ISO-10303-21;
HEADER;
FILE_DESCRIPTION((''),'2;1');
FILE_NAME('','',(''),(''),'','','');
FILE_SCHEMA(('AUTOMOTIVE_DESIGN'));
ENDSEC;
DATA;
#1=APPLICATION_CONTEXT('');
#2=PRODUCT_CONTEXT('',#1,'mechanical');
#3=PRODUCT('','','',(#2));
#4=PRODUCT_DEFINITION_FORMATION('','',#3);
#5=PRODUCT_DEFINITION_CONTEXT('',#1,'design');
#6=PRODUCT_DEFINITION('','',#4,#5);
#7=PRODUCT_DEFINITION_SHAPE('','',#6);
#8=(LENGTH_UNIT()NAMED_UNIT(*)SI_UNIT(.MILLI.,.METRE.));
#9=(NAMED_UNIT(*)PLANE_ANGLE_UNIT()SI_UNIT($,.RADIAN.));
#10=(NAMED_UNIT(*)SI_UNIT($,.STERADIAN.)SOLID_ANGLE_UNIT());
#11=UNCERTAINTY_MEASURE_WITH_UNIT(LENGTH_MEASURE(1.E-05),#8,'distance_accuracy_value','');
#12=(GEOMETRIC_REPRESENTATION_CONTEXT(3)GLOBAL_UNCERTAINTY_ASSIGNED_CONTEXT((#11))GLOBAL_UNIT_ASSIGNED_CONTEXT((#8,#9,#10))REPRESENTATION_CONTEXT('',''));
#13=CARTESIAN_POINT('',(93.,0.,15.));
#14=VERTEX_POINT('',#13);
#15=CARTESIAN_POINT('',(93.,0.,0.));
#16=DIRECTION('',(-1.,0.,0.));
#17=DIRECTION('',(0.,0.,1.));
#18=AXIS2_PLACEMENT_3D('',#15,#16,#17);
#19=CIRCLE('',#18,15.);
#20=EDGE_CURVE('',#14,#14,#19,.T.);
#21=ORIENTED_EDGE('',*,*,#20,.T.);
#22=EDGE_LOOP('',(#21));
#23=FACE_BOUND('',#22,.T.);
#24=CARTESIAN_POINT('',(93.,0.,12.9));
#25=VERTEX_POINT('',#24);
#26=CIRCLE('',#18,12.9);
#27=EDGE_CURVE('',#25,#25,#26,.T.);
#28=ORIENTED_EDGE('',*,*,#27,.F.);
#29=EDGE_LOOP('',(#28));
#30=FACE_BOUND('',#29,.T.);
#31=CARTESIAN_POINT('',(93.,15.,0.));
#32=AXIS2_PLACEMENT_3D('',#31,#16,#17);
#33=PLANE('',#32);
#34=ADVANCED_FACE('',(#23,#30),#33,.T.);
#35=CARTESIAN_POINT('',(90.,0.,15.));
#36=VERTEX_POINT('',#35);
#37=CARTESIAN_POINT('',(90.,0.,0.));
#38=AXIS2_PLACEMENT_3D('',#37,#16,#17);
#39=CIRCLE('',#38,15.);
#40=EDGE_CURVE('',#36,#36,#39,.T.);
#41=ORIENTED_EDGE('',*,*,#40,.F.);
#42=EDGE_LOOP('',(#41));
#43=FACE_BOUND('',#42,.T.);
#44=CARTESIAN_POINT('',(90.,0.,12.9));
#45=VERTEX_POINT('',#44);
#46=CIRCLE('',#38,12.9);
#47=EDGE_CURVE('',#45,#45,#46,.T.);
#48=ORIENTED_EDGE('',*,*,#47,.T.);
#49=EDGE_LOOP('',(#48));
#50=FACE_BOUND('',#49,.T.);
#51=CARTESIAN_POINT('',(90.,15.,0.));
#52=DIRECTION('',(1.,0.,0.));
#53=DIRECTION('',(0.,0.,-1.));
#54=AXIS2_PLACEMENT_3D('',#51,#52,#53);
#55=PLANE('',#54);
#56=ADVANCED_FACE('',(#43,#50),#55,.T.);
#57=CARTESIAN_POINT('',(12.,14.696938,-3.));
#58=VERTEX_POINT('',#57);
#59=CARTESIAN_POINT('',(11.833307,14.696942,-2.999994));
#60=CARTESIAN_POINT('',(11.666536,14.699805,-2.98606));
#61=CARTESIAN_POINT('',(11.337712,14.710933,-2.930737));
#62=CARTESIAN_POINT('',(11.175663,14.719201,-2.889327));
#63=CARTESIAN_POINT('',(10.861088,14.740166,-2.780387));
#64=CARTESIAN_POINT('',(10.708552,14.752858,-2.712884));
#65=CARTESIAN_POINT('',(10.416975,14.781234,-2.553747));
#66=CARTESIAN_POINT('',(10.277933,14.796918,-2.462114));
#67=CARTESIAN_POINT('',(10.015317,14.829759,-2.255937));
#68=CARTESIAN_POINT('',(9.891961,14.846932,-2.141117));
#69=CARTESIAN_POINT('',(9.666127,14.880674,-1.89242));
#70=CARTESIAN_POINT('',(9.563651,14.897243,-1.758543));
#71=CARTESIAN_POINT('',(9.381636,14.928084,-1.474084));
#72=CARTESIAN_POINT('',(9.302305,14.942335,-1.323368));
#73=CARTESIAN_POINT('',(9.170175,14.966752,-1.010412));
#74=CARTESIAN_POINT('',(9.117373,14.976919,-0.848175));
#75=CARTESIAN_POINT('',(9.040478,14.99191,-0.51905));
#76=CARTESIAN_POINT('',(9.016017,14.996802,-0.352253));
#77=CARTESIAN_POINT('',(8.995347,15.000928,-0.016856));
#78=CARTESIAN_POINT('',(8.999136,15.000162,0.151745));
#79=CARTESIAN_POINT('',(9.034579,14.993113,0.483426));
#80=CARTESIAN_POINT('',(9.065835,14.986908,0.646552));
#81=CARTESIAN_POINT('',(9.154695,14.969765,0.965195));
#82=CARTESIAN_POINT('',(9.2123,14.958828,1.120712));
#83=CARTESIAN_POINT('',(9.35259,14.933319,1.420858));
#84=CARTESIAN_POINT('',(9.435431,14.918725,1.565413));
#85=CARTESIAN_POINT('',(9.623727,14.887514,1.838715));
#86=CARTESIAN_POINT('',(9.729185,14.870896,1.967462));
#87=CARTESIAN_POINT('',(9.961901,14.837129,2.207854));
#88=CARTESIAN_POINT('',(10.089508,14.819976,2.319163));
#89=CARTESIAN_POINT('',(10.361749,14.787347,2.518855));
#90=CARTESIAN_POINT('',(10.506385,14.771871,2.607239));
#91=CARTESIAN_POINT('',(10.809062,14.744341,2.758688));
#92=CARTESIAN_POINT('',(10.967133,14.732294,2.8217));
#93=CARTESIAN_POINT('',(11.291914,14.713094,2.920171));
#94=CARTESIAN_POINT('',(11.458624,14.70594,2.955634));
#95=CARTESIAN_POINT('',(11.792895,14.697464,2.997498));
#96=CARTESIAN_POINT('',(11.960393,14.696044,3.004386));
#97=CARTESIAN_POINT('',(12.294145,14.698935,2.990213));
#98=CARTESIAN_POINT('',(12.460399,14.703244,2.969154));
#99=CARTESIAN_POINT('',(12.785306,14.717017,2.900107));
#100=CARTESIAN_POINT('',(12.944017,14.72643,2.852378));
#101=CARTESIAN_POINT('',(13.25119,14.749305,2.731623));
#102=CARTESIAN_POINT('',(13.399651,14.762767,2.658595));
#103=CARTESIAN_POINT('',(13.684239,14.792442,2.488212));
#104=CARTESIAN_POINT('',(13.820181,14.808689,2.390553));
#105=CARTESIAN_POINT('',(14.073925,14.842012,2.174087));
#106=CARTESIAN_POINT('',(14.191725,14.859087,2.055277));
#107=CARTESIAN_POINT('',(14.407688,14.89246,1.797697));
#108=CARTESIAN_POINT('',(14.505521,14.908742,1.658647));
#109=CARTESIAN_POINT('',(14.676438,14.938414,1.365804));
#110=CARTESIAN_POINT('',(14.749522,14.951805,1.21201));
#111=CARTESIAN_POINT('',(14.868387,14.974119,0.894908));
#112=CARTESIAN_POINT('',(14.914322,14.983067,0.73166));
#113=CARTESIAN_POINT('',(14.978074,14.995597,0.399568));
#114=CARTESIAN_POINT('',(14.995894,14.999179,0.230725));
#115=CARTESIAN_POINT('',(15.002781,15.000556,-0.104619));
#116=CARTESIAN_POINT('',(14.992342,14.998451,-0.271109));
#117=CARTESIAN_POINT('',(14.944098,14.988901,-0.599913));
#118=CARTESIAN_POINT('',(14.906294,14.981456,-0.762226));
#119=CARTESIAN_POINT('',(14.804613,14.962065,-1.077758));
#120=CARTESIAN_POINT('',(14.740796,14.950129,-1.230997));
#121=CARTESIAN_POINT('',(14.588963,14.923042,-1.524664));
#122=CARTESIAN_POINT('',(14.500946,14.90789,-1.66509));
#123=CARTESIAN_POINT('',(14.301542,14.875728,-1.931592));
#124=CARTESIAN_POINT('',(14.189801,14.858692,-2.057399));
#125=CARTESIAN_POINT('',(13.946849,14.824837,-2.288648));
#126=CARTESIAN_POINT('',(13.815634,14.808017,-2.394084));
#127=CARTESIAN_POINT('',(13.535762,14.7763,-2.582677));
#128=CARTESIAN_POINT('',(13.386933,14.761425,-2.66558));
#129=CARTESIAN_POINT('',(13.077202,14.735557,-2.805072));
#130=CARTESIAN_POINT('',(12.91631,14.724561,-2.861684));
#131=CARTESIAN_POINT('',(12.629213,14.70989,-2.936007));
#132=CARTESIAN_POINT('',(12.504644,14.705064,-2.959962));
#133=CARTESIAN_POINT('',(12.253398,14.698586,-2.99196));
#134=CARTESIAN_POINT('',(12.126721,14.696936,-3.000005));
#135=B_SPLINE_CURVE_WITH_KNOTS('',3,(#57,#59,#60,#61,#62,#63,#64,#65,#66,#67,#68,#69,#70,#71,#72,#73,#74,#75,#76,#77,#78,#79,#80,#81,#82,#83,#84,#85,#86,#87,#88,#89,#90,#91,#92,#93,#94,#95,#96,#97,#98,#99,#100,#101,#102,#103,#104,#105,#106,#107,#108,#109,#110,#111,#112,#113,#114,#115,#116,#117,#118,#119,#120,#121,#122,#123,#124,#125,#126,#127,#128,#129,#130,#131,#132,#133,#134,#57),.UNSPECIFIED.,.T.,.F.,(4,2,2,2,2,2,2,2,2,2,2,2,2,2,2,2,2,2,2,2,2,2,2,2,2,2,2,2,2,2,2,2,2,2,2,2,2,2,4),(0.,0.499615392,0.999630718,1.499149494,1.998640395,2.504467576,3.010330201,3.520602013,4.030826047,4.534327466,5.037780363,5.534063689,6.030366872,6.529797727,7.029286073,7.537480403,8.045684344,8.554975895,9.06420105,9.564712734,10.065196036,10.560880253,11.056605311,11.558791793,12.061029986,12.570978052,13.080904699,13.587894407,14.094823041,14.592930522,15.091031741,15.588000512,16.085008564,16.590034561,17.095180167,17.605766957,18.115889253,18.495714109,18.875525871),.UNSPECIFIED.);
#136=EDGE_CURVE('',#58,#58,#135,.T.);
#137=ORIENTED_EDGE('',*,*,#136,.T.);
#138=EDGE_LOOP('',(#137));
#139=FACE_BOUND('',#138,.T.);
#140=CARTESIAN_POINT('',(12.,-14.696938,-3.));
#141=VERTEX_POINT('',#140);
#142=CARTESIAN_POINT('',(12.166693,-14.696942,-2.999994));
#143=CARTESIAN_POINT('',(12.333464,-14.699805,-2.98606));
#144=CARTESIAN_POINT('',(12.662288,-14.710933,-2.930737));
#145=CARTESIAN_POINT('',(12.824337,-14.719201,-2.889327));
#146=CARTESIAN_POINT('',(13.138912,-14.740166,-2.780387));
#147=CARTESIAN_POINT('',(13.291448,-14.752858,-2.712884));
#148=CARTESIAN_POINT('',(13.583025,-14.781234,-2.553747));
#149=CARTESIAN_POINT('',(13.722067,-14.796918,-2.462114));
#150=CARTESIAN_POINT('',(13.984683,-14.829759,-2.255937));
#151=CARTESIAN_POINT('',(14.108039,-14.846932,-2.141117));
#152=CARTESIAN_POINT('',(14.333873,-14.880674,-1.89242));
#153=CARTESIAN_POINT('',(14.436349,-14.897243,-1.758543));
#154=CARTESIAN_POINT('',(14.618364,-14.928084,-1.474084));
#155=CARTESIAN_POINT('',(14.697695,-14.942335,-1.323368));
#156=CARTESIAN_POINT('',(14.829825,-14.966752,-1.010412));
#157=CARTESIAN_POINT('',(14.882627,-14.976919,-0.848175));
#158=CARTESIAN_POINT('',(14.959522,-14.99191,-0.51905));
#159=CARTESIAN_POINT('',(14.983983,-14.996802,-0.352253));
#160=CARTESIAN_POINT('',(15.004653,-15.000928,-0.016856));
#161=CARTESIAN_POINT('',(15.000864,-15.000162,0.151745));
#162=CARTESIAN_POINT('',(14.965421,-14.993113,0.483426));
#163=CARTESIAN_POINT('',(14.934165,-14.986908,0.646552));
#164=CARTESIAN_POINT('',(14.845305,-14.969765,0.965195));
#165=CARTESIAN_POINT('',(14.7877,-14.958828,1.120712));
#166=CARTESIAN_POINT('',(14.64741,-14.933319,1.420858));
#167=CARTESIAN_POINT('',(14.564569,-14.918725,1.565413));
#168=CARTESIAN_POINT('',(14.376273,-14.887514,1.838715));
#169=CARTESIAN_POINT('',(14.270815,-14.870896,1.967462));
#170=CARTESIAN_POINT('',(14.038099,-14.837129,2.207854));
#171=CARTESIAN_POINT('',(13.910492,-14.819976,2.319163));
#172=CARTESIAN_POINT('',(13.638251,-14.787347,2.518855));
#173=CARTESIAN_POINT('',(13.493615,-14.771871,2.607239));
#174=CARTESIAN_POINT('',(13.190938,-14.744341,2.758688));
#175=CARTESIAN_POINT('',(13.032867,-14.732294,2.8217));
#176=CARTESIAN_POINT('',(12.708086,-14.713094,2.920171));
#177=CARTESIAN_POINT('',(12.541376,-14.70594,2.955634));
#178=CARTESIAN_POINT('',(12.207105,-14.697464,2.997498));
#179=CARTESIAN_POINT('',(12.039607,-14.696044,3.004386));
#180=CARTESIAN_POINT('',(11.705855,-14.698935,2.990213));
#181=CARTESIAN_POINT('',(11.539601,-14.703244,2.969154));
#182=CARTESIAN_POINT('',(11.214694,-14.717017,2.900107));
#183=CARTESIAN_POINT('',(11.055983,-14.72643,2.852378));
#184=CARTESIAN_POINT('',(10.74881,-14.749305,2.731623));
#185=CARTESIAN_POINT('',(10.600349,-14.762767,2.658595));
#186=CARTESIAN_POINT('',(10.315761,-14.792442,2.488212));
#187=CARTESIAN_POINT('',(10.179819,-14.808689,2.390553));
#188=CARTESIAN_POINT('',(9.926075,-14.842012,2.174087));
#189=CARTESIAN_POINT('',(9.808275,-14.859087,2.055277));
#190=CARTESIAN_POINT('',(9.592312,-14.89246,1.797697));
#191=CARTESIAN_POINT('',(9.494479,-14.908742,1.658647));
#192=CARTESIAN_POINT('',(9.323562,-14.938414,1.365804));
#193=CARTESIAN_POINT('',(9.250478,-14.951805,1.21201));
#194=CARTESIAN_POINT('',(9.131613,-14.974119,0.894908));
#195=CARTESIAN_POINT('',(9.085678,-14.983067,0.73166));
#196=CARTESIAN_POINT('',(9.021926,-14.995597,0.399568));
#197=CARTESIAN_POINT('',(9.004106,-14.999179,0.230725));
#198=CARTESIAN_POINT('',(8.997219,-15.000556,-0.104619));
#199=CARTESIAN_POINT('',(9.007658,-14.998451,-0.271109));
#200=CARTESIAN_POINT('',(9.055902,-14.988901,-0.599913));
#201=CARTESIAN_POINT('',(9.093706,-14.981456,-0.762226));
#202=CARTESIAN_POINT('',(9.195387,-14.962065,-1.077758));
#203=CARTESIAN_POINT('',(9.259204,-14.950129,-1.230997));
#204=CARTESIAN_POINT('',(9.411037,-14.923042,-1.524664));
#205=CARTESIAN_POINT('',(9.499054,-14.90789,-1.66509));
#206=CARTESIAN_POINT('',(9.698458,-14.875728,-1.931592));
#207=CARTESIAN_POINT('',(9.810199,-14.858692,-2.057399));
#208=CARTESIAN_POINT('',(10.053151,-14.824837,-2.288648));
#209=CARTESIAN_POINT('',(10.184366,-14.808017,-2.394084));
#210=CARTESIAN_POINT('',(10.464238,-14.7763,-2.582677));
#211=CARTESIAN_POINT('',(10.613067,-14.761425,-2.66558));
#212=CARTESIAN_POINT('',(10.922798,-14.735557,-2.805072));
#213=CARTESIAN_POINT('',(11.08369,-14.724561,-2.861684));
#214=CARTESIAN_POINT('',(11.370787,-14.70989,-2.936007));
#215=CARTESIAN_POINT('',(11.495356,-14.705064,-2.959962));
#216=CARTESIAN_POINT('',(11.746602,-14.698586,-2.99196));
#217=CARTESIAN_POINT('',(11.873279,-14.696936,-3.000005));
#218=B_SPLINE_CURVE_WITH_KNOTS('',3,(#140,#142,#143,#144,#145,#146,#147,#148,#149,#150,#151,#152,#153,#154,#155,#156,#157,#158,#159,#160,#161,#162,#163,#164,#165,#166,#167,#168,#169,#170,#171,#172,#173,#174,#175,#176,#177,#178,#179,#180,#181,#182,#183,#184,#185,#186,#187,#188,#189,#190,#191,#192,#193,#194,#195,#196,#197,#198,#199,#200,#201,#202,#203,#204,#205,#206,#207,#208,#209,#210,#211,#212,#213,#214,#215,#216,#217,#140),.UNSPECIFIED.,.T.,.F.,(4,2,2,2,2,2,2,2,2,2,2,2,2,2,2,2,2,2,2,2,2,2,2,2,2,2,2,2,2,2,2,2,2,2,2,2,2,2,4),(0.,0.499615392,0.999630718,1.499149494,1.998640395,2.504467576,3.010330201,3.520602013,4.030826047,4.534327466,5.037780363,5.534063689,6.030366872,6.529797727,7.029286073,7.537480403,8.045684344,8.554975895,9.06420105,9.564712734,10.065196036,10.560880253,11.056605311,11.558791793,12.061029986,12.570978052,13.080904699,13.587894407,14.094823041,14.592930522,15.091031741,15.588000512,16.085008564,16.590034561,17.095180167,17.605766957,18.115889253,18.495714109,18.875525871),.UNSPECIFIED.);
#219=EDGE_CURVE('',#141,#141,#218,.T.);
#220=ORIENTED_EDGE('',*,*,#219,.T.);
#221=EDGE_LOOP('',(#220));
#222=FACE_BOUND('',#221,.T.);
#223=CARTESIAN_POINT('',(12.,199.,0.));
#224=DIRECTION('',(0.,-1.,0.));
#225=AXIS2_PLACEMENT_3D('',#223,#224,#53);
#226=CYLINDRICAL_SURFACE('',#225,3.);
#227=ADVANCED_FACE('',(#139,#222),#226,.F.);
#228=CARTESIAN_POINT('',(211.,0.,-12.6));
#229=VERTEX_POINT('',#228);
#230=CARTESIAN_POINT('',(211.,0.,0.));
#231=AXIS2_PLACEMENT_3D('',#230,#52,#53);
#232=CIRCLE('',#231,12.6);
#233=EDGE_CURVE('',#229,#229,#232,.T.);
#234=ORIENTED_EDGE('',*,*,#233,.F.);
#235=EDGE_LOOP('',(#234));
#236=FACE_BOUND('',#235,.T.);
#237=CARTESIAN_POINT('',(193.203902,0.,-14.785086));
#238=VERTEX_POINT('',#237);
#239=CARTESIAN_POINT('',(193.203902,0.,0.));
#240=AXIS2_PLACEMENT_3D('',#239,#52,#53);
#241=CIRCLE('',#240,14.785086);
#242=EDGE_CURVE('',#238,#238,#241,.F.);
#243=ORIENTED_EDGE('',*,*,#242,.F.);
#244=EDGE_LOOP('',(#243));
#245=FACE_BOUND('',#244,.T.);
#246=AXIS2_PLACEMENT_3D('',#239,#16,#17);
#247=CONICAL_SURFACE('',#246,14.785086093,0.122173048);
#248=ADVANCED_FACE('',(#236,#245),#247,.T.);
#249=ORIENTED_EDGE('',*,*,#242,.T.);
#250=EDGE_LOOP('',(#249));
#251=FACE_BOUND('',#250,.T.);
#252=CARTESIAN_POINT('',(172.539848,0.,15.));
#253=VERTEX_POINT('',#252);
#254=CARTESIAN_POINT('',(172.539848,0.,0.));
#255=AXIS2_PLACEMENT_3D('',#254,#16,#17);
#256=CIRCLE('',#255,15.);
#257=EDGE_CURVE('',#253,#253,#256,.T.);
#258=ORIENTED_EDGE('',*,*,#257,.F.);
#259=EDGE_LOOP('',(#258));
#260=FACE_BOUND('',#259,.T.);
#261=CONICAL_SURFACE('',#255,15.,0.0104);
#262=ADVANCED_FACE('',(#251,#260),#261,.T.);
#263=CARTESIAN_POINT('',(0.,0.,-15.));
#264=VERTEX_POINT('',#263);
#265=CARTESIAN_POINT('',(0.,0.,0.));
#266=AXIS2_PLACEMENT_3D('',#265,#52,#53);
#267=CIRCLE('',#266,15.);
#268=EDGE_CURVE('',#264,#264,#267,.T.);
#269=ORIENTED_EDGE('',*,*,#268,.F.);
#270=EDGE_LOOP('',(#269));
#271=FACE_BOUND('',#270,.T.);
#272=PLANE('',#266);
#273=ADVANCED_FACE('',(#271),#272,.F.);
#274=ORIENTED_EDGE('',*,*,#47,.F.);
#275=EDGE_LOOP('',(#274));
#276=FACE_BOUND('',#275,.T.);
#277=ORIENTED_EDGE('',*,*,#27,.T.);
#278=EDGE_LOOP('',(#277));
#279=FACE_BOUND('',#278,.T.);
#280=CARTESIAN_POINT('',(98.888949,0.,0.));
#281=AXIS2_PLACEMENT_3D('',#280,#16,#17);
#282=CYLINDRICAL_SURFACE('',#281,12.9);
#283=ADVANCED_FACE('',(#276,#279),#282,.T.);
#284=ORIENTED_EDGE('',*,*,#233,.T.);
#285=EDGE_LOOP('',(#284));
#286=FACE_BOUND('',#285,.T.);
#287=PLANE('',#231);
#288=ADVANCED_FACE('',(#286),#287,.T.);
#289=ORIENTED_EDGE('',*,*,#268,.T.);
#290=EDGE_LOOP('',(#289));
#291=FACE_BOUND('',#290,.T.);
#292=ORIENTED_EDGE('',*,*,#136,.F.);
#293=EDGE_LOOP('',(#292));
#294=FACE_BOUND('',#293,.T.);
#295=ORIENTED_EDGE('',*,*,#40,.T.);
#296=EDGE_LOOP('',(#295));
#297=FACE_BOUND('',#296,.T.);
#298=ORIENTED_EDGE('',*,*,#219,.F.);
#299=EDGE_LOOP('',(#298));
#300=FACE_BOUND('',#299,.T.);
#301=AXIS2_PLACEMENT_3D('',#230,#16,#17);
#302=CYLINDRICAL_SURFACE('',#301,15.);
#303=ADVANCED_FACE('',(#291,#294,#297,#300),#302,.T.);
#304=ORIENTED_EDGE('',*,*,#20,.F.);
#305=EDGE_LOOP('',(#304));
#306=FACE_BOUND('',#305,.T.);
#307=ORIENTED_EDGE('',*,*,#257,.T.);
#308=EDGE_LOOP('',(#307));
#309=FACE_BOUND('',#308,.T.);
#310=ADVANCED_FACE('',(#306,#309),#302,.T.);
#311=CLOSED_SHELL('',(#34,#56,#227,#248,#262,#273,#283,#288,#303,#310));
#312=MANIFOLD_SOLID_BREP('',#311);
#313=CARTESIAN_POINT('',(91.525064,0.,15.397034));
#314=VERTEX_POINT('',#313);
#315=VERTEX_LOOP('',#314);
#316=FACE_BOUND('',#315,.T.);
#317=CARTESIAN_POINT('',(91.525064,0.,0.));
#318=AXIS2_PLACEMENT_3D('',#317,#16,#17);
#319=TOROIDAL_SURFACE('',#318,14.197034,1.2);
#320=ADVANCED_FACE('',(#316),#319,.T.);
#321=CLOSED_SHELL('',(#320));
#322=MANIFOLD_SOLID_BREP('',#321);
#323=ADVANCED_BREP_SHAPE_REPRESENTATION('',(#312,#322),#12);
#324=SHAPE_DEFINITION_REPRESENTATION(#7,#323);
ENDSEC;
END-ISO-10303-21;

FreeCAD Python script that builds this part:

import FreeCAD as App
import Part
import Sketcher
from FreeCAD import Vector


def edges_at(feature, points):
    """Names of the edges that pass closest to the given points."""
    edges = feature.Shape.Edges
    near = lambda p: min(range(len(edges)), key=lambda i: edges[i].distToShape(Part.Vertex(*p))[0])
    return sorted({f"Edge{near(p) + 1}" for p in points})

doc = App.newDocument("Part")
body = doc.addObject("PartDesign::Body", "Body")

sketch1 = body.newObject("Sketcher::SketchObject", "Sketch")
sketch1.AttachmentSupport = (doc.getObject("YZ_Plane"), [""])
sketch1.MapMode = "FlatFace"
sketch1.addGeometry(Part.Circle(Vector(0, 0, 0), Vector(0, 0, 1), 15), False)
sketch1.addConstraint(Sketcher.Constraint("Coincident", 0, 3, -1, 1))
sketch1.addConstraint(Sketcher.Constraint("Diameter", 0, 30.0))
pad1 = body.newObject("PartDesign::Pad", "Pad")
pad1.Profile = sketch1
pad1.Length = 211

sketch2 = body.newObject("Sketcher::SketchObject", "Sketch001")
sketch2.AttachmentSupport = (doc.getObject("XZ_Plane"), [""])
sketch2.MapMode = "FlatFace"
sketch2.addGeometry(Part.Circle(Vector(12, 0, 0), Vector(0, 0, 1), 3), False)
sketch2.addConstraint(Sketcher.Constraint("PointOnObject", 0, 3, -1))
sketch2.addConstraint(Sketcher.Constraint("Diameter", 0, 6.0))
sketch2.addConstraint(Sketcher.Constraint("DistanceX", -1, 1, 0, 3, 12.0))
pocket1 = body.newObject("PartDesign::Pocket", "Pocket")
pocket1.Profile = sketch2
pocket1.Type = "ThroughAll"
pocket1.Midplane = True

sketch3 = body.newObject("Sketcher::SketchObject", "Sketch002")
sketch3.AttachmentSupport = (doc.getObject("XY_Plane"), [""])
sketch3.MapMode = "FlatFace"
sketch3.addGeometry(Part.LineSegment(Vector(172.539848, 15, 0), Vector(211, 14.6, 0)), False)
sketch3.addGeometry(Part.LineSegment(Vector(211, 14.6, 0), Vector(211, 15, 0)), False)
sketch3.addGeometry(Part.LineSegment(Vector(211, 15, 0), Vector(172.539848, 15, 0)), False)
sketch3.addConstraint(Sketcher.Constraint("Coincident", 0, 2, 1, 1))
sketch3.addConstraint(Sketcher.Constraint("Coincident", 1, 2, 2, 1))
sketch3.addConstraint(Sketcher.Constraint("Coincident", 2, 2, 0, 1))
sketch3.addConstraint(Sketcher.Constraint("Vertical", 1))
sketch3.addConstraint(Sketcher.Constraint("Horizontal", 2))
sketch3.addConstraint(Sketcher.Constraint("DistanceY", 1, 1, 1, 2, 0.4))
sketch3.addConstraint(Sketcher.Constraint("DistanceX", -1, 1, 0, 2, 211.0))
sketch3.addConstraint(Sketcher.Constraint("DistanceY", -1, 1, 1, 2, 15.0))
sketch3.addConstraint(Sketcher.Constraint("DistanceX", 2, 2, 2, 1, 38.460152))
groove = body.newObject("PartDesign::Groove", "Groove")
groove.Profile = sketch3
groove.ReferenceAxis = (sketch3, ["H_Axis"])
groove.Angle = 360
doc.recompute()

chamfer = body.newObject("PartDesign::Chamfer", "Chamfer")
chamfer.Base = (groove, edges_at(groove, [(211, 0, -14.6)]))
chamfer.ChamferType = "Two distances"
chamfer.Size = 2
chamfer.Size2 = 17.797061
chamfer.FlipDirection = True

sketch4 = body.newObject("Sketcher::SketchObject", "Sketch003")
sketch4.AttachmentSupport = (doc.getObject("XY_Plane"), [""])
sketch4.MapMode = "FlatFace"
sketch4.addGeometry(Part.LineSegment(Vector(90, 15, 0), Vector(90, 12.9, 0)), False)
sketch4.addGeometry(Part.LineSegment(Vector(90, 12.9, 0), Vector(93, 12.9, 0)), False)
sketch4.addGeometry(Part.LineSegment(Vector(93, 12.9, 0), Vector(93, 15, 0)), False)
sketch4.addGeometry(Part.LineSegment(Vector(93, 15, 0), Vector(90, 15, 0)), False)
sketch4.addConstraint(Sketcher.Constraint("Coincident", 0, 2, 1, 1))
sketch4.addConstraint(Sketcher.Constraint("Coincident", 1, 2, 2, 1))
sketch4.addConstraint(Sketcher.Constraint("Coincident", 2, 2, 3, 1))
sketch4.addConstraint(Sketcher.Constraint("Coincident", 3, 2, 0, 1))
sketch4.addConstraint(Sketcher.Constraint("Vertical", 0))
sketch4.addConstraint(Sketcher.Constraint("Horizontal", 1))
sketch4.addConstraint(Sketcher.Constraint("Vertical", 2))
sketch4.addConstraint(Sketcher.Constraint("Horizontal", 3))
sketch4.addConstraint(Sketcher.Constraint("DistanceX", 1, 1, 1, 2, 3.0))
sketch4.addConstraint(Sketcher.Constraint("DistanceY", 0, 2, 0, 1, 2.1))
sketch4.addConstraint(Sketcher.Constraint("DistanceX", -1, 1, 0, 2, 90.0))
sketch4.addConstraint(Sketcher.Constraint("DistanceY", -1, 1, 2, 2, 15.0))
groove2 = body.newObject("PartDesign::Groove", "Groove001")
groove2.Profile = sketch4
groove2.ReferenceAxis = (sketch4, ["H_Axis"])
groove2.Angle = 360
body2 = doc.addObject("PartDesign::Body", "Body001")

sketch5 = body2.newObject("Sketcher::SketchObject", "Sketch004")
sketch5.AttachmentSupport = (doc.getObject("XY_Plane001"), [""])
sketch5.MapMode = "FlatFace"
sketch5.addGeometry(Part.Circle(Vector(91.5, 14.2, 0), Vector(0, 0, 1), 1.2), False)
sketch5.addConstraint(Sketcher.Constraint("Diameter", 0, 2.4))
sketch5.addConstraint(Sketcher.Constraint("DistanceX", -1, 1, 0, 3, 91.525064))
sketch5.addConstraint(Sketcher.Constraint("DistanceY", -1, 1, 0, 3, 14.197034))
revolution = body2.newObject("PartDesign::Revolution", "Revolution")
revolution.Profile = sketch5
revolution.ReferenceAxis = (sketch5, ["H_Axis"])
revolution.Angle = 360

doc.recompute()
